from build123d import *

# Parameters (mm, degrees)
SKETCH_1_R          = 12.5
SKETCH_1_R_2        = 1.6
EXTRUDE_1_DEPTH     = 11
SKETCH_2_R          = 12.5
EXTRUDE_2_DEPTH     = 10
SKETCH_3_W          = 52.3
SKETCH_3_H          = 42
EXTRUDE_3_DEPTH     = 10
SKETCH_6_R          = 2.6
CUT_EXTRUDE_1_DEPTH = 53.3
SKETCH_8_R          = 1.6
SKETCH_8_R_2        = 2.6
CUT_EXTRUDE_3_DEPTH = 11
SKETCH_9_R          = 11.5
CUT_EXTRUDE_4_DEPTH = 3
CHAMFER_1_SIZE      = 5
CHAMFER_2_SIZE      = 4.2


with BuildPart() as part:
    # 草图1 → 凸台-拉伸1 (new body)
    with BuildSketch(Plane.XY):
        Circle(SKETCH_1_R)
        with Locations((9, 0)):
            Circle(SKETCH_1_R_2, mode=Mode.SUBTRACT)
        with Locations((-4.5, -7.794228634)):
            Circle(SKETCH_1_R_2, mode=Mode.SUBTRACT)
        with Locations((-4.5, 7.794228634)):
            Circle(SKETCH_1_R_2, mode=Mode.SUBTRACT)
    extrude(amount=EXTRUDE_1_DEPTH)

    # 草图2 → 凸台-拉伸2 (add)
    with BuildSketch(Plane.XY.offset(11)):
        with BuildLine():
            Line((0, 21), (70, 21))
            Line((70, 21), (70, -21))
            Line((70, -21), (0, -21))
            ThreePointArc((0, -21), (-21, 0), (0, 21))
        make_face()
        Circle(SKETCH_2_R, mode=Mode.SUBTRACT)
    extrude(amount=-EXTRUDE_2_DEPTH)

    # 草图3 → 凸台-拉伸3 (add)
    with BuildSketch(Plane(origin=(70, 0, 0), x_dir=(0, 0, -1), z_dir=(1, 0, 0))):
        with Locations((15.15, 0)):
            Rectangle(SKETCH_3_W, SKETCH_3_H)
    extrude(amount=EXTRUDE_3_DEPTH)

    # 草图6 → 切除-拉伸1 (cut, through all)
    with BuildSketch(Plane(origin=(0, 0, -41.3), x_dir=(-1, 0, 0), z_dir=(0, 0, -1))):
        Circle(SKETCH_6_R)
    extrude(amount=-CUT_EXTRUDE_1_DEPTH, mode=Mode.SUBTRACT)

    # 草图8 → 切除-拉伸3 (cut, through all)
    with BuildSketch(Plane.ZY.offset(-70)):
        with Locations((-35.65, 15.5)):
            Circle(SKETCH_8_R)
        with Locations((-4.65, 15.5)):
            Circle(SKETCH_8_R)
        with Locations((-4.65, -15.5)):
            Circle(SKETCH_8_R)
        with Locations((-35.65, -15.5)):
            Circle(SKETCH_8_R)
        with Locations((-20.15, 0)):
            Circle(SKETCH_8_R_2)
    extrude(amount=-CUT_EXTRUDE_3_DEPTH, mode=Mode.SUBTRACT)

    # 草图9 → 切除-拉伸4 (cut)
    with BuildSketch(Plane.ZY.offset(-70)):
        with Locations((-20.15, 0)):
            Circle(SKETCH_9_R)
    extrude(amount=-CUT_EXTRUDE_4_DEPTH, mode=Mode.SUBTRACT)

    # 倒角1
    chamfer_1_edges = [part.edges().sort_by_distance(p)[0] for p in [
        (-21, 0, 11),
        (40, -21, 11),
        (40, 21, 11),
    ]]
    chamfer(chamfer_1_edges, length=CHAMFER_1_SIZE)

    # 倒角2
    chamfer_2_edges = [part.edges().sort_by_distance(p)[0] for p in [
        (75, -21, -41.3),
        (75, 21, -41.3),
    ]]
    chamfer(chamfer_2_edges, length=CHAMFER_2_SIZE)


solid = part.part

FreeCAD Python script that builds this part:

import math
import FreeCAD as App
import Part
import Sketcher

V = App.Vector
Q = App.Units.Quantity


def edges_at(feature, points):
    """Names of the edges that pass closest to the given points."""
    edges = feature.Shape.Edges
    near = lambda p: min(range(len(edges)), key=lambda i: edges[i].distToShape(Part.Vertex(*p))[0])
    return sorted({f"Edge{near(p) + 1}" for p in points})

doc = App.newDocument("Part")
params = doc.addObject("Spreadsheet::Sheet", "Params")
for row, (alias, value) in enumerate([
    ("sketch1_diameter", "25 mm"),
    ("sketch1_diameter2", "3.2 mm"),
    ("pad1_length", "11 mm"),
    ("sketch2_diameter", "25 mm"),
    ("sketch2_radius", "21 mm"),
    ("sketch2_width", "70 mm"),
    ("pad2_length", "10 mm"),
    ("sketch3_width", "42 mm"),
    ("sketch3_height", "52.3 mm"),
    ("pad3_length", "10 mm"),
    ("sketch4_diameter", "5.2 mm"),
    ("sketch5_diameter", "3.2 mm"),
    ("sketch5_diameter2", "5.2 mm"),
    ("sketch6_diameter", "23 mm"),
    ("pocket3_length", "3 mm"),
    ("chamfer_size", "5 mm"),
    ("chamfer2_size", "4.2 mm"),
], start=1):
    params.set(f"A{row}", alias)
    params.set(f"B{row}", "=" + value)
    params.setAlias(f"B{row}", alias)

body = doc.addObject("PartDesign::Body", "Body")

# Sketch on XY plane
sketch1 = doc.addObject("Sketcher::SketchObject", "Sketch")
body.addObject(sketch1)
sketch1.AttachmentSupport = (doc.XY_Plane, [""])
sketch1.MapMode = "FlatFace"
sketch1.addGeometry(Part.Circle(V(0, 0, 0), V(0, 0, 1), 12.5), False)
sketch1.addGeometry(Part.Circle(V(-4.5, -7.8, 0), V(0, 0, 1), 1.6), False)
sketch1.addGeometry(Part.Circle(V(9, 0, 0), V(0, 0, 1), 1.6), False)
sketch1.addGeometry(Part.Circle(V(-4.5, 7.8, 0), V(0, 0, 1), 1.6), False)
sketch1.addConstraint(Sketcher.Constraint("Coincident", 0, 3, -1, 1))
sketch1.addConstraint(Sketcher.Constraint("Equal", 1, 2))
sketch1.addConstraint(Sketcher.Constraint("Equal", 2, 3))
sketch1.addConstraint(Sketcher.Constraint("Symmetric", 1, 3, 3, 3, -1))
sketch1.addConstraint(Sketcher.Constraint("PointOnObject", 2, 3, -1))
sketch1.addConstraint(Sketcher.Constraint("Diameter", 0, Q("25 mm")))
sketch1.addConstraint(Sketcher.Constraint("Diameter", 1, Q("3.2 mm")))
sketch1.addConstraint(Sketcher.Constraint("DistanceX", -1, 1, 2, 3, Q("9 mm")))
sketch1.addConstraint(Sketcher.Constraint("DistanceX", 1, 3, -1, 1, Q("4.5 mm")))
sketch1.addConstraint(Sketcher.Constraint("DistanceY", 1, 3, -1, 1, Q("7.794229 mm")))
sketch1.setExpression("Constraints[5]", "Params.sketch1_diameter")
sketch1.setExpression("Constraints[6]", "Params.sketch1_diameter2")
pad1 = doc.addObject("PartDesign::Pad", "Pad")
body.addObject(pad1)
pad1.Profile = sketch1
pad1.setExpression("Length", "Params.pad1_length")

# Sketch on XY plane
sketch2 = doc.addObject("Sketcher::SketchObject", "Sketch001")
body.addObject(sketch2)
sketch2.AttachmentSupport = (doc.XY_Plane, [""])
sketch2.MapMode = "FlatFace"
sketch2.AttachmentOffset = App.Placement(V(0, 0, 11), App.Rotation())
sketch2.addGeometry(Part.LineSegment(V(70, 21, 0), V(0, 21, 0)), False)
sketch2.addGeometry(Part.ArcOfCircle(Part.Circle(V(0, 0, 0), V(0, 0, 1), 21), math.radians(90), math.radians(270)), False)
sketch2.addGeometry(Part.LineSegment(V(0, -21, 0), V(70, -21, 0)), False)
sketch2.addGeometry(Part.LineSegment(V(70, -21, 0), V(70, 21, 0)), False)
sketch2.addGeometry(Part.Circle(V(0, 0, 0), V(0, 0, 1), 12), False)
sketch2.addConstraint(Sketcher.Constraint("Tangent", 0, 2, 1, 1))
sketch2.addConstraint(Sketcher.Constraint("Tangent", 1, 2, 2, 1))
sketch2.addConstraint(Sketcher.Constraint("Coincident", 2, 2, 3, 1))
sketch2.addConstraint(Sketcher.Constraint("Coincident", 3, 2, 0, 1))
sketch2.addConstraint(Sketcher.Constraint("Horizontal", 0))
sketch2.addConstraint(Sketcher.Constraint("Horizontal", 2))
sketch2.addConstraint(Sketcher.Constraint("Vertical", 3))
sketch2.addConstraint(Sketcher.Constraint("Coincident", 1, 3, -1, 1))
sketch2.addConstraint(Sketcher.Constraint("Coincident", 4, 3, -1, 1))
sketch2.addConstraint(Sketcher.Constraint("Diameter", 4, Q("25 mm")))
sketch2.addConstraint(Sketcher.Constraint("Radius", 1, Q("21 mm")))
sketch2.addConstraint(Sketcher.Constraint("DistanceX", 0, 2, 0, 1, Q("70 mm")))
sketch2.setExpression("Constraints[9]", "Params.sketch2_diameter")
sketch2.setExpression("Constraints[10]", "Params.sketch2_radius")
sketch2.setExpression("Constraints[11]", "Params.sketch2_width")
pad2 = doc.addObject("PartDesign::Pad", "Pad001")
body.addObject(pad2)
pad2.Profile = sketch2
pad2.setExpression("Length", "Params.pad2_length")
pad2.Reversed = True

# Sketch on YZ plane
sketch3 = doc.addObject("Sketcher::SketchObject", "Sketch002")
body.addObject(sketch3)
sketch3.AttachmentSupport = (doc.YZ_Plane, [""])
sketch3.MapMode = "FlatFace"
sketch3.AttachmentOffset = App.Placement(V(0, 0, 70), App.Rotation())
sketch3.addGeometry(Part.LineSegment(V(21, 11, 0), V(-21, 11, 0)), False)
sketch3.addGeometry(Part.LineSegment(V(-21, 11, 0), V(-21, -41, 0)), False)
sketch3.addGeometry(Part.LineSegment(V(-21, -41, 0), V(21, -41, 0)), False)
sketch3.addGeometry(Part.LineSegment(V(21, -41, 0), V(21, 11, 0)), False)
sketch3.addConstraint(Sketcher.Constraint("Coincident", 0, 2, 1, 1))
sketch3.addConstraint(Sketcher.Constraint("Coincident", 1, 2, 2, 1))
sketch3.addConstraint(Sketcher.Constraint("Coincident", 2, 2, 3, 1))
sketch3.addConstraint(Sketcher.Constraint("Coincident", 3, 2, 0, 1))
sketch3.addConstraint(Sketcher.Constraint("Horizontal", 0))
sketch3.addConstraint(Sketcher.Constraint("Vertical", 1))
sketch3.addConstraint(Sketcher.Constraint("Horizontal", 2))
sketch3.addConstraint(Sketcher.Constraint("Vertical", 3))
sketch3.addConstraint(Sketcher.Constraint("DistanceX", 0, 2, 0, 1, Q("42 mm")))
sketch3.addConstraint(Sketcher.Constraint("DistanceY", 1, 2, 1, 1, Q("52.3 mm")))
sketch3.addConstraint(Sketcher.Constraint("DistanceX", 0, 2, -1, 1, Q("21 mm")))
sketch3.addConstraint(Sketcher.Constraint("DistanceY", -1, 1, 0, 2, Q("11 mm")))
sketch3.setExpression("Constraints[8]", "Params.sketch3_width")
sketch3.setExpression("Constraints[9]", "Params.sketch3_height")
pad3 = doc.addObject("PartDesign::Pad", "Pad002")
body.addObject(pad3)
pad3.Profile = sketch3
pad3.setExpression("Length", "Params.pad3_length")

# Sketch on XY plane
sketch4 = doc.addObject("Sketcher::SketchObject", "Sketch003")
body.addObject(sketch4)
sketch4.AttachmentSupport = (doc.XY_Plane, [""])
sketch4.MapMode = "FlatFace"
sketch4.AttachmentOffset = App.Placement(V(0, 0, -41.3), App.Rotation())
sketch4.addGeometry(Part.Circle(V(0, 0, 0), V(0, 0, 1), 2.6), False)
sketch4.addConstraint(Sketcher.Constraint("Coincident", 0, 3, -1, 1))
sketch4.addConstraint(Sketcher.Constraint("Diameter", 0, Q("5.2 mm")))
sketch4.setExpression("Constraints[1]", "Params.sketch4_diameter")
pocket1 = doc.addObject("PartDesign::Pocket", "Pocket")
body.addObject(pocket1)
pocket1.Profile = sketch4
pocket1.Type = "ThroughAll"
pocket1.Reversed = True

# Sketch on YZ plane
sketch5 = doc.addObject("Sketcher::SketchObject", "Sketch004")
body.addObject(sketch5)
sketch5.AttachmentSupport = (doc.YZ_Plane, [""])
sketch5.MapMode = "FlatFace"
sketch5.AttachmentOffset = App.Placement(V(0, 0, 70), App.Rotation())
sketch5.addGeometry(Part.Circle(V(15.5, -35.6, 0), V(0, 0, 1), 1.6), False)
sketch5.addGeometry(Part.Circle(V(15.5, -4.7, 0), V(0, 0, 1), 1.6), False)
sketch5.addGeometry(Part.Circle(V(-15.5, -4.7, 0), V(0, 0, 1), 1.6), False)
sketch5.addGeometry(Part.Circle(V(-15.5, -35.6, 0), V(0, 0, 1), 1.6), False)
sketch5.addGeometry(Part.Circle(V(0, -20.1, 0), V(0, 0, 1), 2.6), False)
sketch5.addConstraint(Sketcher.Constraint("Equal", 0, 1))
sketch5.addConstraint(Sketcher.Constraint("Equal", 1, 2))
sketch5.addConstraint(Sketcher.Constraint("Equal", 2, 3))
sketch5.addConstraint(Sketcher.Constraint("Symmetric", 1, 3, 2, 3, -2))
sketch5.addConstraint(Sketcher.Constraint("Symmetric", 0, 3, 3, 3, -2))
sketch5.addConstraint(Sketcher.Constraint("PointOnObject", 4, 3, -2))
sketch5.addConstraint(Sketcher.Constraint("Vertical", 0, 3, 1, 3))
sketch5.addConstraint(Sketcher.Constraint("Diameter", 0, Q("3.2 mm")))
sketch5.addConstraint(Sketcher.Constraint("Diameter", 4, Q("5.2 mm")))
sketch5.addConstraint(Sketcher.Constraint("DistanceY", 0, 3, 1, 3, Q("31 mm")))
sketch5.addConstraint(Sketcher.Constraint("DistanceX", 2, 3, 1, 3, Q("31 mm")))
sketch5.addConstraint(Sketcher.Constraint("DistanceY", 0, 3, 4, 3, Q("15.5 mm")))
sketch5.addConstraint(Sketcher.Constraint("DistanceY", 0, 3, -1, 1, Q("35.65 mm")))
sketch5.setExpression("Constraints[7]", "Params.sketch5_diameter")
sketch5.setExpression("Constraints[8]", "Params.sketch5_diameter2")
pocket2 = doc.addObject("PartDesign::Pocket", "Pocket001")
body.addObject(pocket2)
pocket2.Profile = sketch5
pocket2.Type = "ThroughAll"
pocket2.Reversed = True

# Sketch on YZ plane
sketch6 = doc.addObject("Sketcher::SketchObject", "Sketch005")
body.addObject(sketch6)
sketch6.AttachmentSupport = (doc.YZ_Plane, [""])
sketch6.MapMode = "FlatFace"
sketch6.AttachmentOffset = App.Placement(V(0, 0, 70), App.Rotation())
sketch6.addGeometry(Part.Circle(V(0, -20, 0), V(0, 0, 1), 12), False)
sketch6.addConstraint(Sketcher.Constraint("PointOnObject", 0, 3, -2))
sketch6.addConstraint(Sketcher.Constraint("Diameter", 0, Q("23 mm")))
sketch6.addConstraint(Sketcher.Constraint("DistanceY", 0, 3, -1, 1, Q("20.15 mm")))
sketch6.setExpression("Constraints[1]", "Params.sketch6_diameter")
pocket3 = doc.addObject("PartDesign::Pocket", "Pocket002")
body.addObject(pocket3)
pocket3.Profile = sketch6
pocket3.setExpression("Length", "Params.pocket3_length")
pocket3.Reversed = True
doc.recompute()

chamfer = doc.addObject("PartDesign::Chamfer", "Chamfer")
body.addObject(chamfer)
chamfer.Base = (pocket3, edges_at(pocket3, [(-21, 0, 11), (40, -21, 11), (40, 21, 11)]))
chamfer.setExpression("Size", "Params.chamfer_size")
doc.recompute()

chamfer2 = doc.addObject("PartDesign::Chamfer", "Chamfer001")
body.addObject(chamfer2)
chamfer2.Base = (chamfer, edges_at(chamfer, [(75, -21, -41.3), (75, 21, -41.3)]))
chamfer2.setExpression("Size", "Params.chamfer2_size")

doc.recompute()
